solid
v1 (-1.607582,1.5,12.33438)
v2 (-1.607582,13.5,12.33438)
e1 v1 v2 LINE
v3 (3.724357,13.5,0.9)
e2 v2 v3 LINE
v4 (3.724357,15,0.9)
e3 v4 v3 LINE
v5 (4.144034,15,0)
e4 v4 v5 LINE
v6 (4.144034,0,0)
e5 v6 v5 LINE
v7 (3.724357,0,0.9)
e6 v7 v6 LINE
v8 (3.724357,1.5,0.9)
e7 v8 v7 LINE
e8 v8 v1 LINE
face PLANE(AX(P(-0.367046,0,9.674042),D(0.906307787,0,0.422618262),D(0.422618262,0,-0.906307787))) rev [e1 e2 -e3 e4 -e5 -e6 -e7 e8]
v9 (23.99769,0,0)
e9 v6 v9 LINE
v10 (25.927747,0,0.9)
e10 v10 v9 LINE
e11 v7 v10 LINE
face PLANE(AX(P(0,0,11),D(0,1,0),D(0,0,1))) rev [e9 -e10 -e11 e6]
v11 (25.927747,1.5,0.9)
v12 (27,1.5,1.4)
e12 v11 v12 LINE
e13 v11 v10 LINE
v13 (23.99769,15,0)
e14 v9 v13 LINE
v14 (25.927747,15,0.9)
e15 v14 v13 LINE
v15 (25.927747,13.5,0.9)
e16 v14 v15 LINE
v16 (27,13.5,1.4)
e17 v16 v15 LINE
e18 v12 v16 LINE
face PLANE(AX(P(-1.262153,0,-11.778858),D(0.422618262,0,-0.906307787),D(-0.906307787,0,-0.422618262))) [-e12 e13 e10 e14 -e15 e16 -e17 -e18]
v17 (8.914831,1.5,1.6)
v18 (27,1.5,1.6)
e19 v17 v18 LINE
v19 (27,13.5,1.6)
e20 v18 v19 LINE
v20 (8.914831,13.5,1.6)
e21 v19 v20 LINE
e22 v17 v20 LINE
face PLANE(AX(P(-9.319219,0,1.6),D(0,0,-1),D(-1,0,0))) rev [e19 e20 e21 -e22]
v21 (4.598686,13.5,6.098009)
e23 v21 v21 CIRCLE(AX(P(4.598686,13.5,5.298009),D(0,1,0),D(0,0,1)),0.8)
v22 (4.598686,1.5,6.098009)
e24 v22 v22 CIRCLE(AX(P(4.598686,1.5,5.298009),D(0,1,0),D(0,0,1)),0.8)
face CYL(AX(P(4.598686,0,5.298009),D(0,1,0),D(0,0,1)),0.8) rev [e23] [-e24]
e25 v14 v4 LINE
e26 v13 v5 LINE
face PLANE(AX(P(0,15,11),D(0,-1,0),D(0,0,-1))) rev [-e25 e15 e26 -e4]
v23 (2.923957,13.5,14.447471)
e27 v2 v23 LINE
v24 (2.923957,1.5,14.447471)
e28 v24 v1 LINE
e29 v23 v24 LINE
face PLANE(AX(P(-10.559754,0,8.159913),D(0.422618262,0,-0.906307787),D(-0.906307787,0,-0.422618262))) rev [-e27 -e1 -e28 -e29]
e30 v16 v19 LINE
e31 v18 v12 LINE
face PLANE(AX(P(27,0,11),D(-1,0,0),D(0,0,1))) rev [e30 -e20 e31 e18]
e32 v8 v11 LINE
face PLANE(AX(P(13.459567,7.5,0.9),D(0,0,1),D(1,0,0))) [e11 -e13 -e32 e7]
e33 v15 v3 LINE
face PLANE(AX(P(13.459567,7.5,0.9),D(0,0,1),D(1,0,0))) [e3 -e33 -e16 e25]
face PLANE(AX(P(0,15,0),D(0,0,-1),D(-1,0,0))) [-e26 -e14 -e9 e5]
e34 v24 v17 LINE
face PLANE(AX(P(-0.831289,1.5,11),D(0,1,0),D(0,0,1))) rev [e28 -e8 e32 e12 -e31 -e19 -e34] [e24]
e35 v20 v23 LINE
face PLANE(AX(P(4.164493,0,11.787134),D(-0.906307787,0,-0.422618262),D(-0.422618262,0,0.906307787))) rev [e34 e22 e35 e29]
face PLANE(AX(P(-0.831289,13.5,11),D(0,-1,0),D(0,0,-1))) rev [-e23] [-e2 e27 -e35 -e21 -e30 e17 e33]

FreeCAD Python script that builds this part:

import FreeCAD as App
import Part
import Sketcher
from FreeCAD import Vector
Q = App.Units.Quantity

doc = App.newDocument("Part")
params = doc.addObject("Spreadsheet::Sheet", "Params")
for row, (alias, value) in enumerate([
    ("sketch1_width", "27 mm"),
    ("sketch1_height", "15 mm"),
    ("pad1_length", "11 mm"),
    ("sketch2_length", "5 mm"),
    ("sketch2_height", "9.4 mm"),
    ("sketch2_height2", "1.4 mm"),
    ("sketch3_height", "12 mm"),
    ("pocket2_length", "10.4 mm"),
    ("pocket2_length2", "0.7 mm"),
    ("sketch4_width", "5 mm"),
    ("sketch4_height", "12 mm"),
    ("pad2_length", "3.803863 mm"),
    ("sketch5_diameter", "1.6 mm"),
], start=1):
    params.set(f"A{row}", alias)
    params.set(f"B{row}", "=" + value)
    params.setAlias(f"B{row}", alias)

body = doc.addObject("PartDesign::Body", "Body")

# Sketch on XY plane
sketch1 = doc.addObject("Sketcher::SketchObject", "Sketch")
body.addObject(sketch1)
sketch1.AttachmentSupport = (doc.XY_Plane, [""])
sketch1.MapMode = "FlatFace"
sketch1.addGeometry(Part.LineSegment(Vector(0, 15, 0), Vector(0, 0, 0)), False)
sketch1.addGeometry(Part.LineSegment(Vector(0, 0, 0), Vector(27, 0, 0)), False)
sketch1.addGeometry(Part.LineSegment(Vector(27, 0, 0), Vector(27, 15, 0)), False)
sketch1.addGeometry(Part.LineSegment(Vector(27, 15, 0), Vector(0, 15, 0)), False)
sketch1.addConstraint(Sketcher.Constraint("Coincident", 0, 2, 1, 1))
sketch1.addConstraint(Sketcher.Constraint("Coincident", 1, 2, 2, 1))
sketch1.addConstraint(Sketcher.Constraint("Coincident", 2, 2, 3, 1))
sketch1.addConstraint(Sketcher.Constraint("Coincident", 3, 2, 0, 1))
sketch1.addConstraint(Sketcher.Constraint("Vertical", 0))
sketch1.addConstraint(Sketcher.Constraint("Horizontal", 1))
sketch1.addConstraint(Sketcher.Constraint("Vertical", 2))
sketch1.addConstraint(Sketcher.Constraint("Horizontal", 3))
sketch1.addConstraint(Sketcher.Constraint("Coincident", 0, 2, -1, 1))
sketch1.addConstraint(Sketcher.Constraint("DistanceX", 1, 1, 1, 2, 27.0))
sketch1.addConstraint(Sketcher.Constraint("DistanceY", 0, 2, 0, 1, 15.0))
sketch1.setExpression("Constraints[9]", "Params.sketch1_width")
sketch1.setExpression("Constraints[10]", "Params.sketch1_height")
pad1 = doc.addObject("PartDesign::Pad", "Pad")
body.addObject(pad1)
pad1.Profile = sketch1
pad1.setExpression("Length", "Params.pad1_length")

# Sketch on XZ plane
sketch2 = doc.addObject("Sketcher::SketchObject", "Sketch001")
body.addObject(sketch2)
sketch2.AttachmentSupport = (doc.XZ_Plane, [""])
sketch2.MapMode = "FlatFace"
sketch2.AttachmentOffset = App.Placement(Vector(0, 0, -15), App.Rotation())
sketch2.addGeometry(Part.LineSegment(Vector(0, 0, 0), Vector(0, 8.886909, 0)), False)
sketch2.addGeometry(Part.LineSegment(Vector(0, 8.886909, 0), Vector(4.144034, 0, 0)), False)
sketch2.addGeometry(Part.LineSegment(Vector(4.144034, 0, 0), Vector(0, 0, 0)), False)
sketch2.addGeometry(Part.LineSegment(Vector(27, 11, 0), Vector(27, 1.6, 0)), False)
sketch2.addGeometry(Part.LineSegment(Vector(27, 1.6, 0), Vector(8.914831, 1.6, 0)), False)
sketch2.addGeometry(Part.LineSegment(Vector(8.914831, 1.6, 0), Vector(4.531539, 11, 0)), False)
sketch2.addGeometry(Part.LineSegment(Vector(4.531539, 11, 0), Vector(27, 11, 0)), False)
sketch2.addGeometry(Part.LineSegment(Vector(0, 11, 0), Vector(4.531539, 11, 0)), False)
sketch2.addGeometry(Part.LineSegment(Vector(4.531539, 11, 0), Vector(0, 8.886909, 0)), False)
sketch2.addGeometry(Part.LineSegment(Vector(0, 8.886909, 0), Vector(0, 11, 0)), False)
sketch2.addGeometry(Part.LineSegment(Vector(23.99769, 0, 0), Vector(27, 1.4, 0)), False)
sketch2.addGeometry(Part.LineSegment(Vector(27, 1.4, 0), Vector(27, 0, 0)), False)
sketch2.addGeometry(Part.LineSegment(Vector(27, 0, 0), Vector(23.99769, 0, 0)), False)
sketch2.addConstraint(Sketcher.Constraint("Coincident", 0, 2, 1, 1))
sketch2.addConstraint(Sketcher.Constraint("Coincident", 1, 2, 2, 1))
sketch2.addConstraint(Sketcher.Constraint("Coincident", 2, 2, 0, 1))
sketch2.addConstraint(Sketcher.Constraint("Coincident", 3, 2, 4, 1))
sketch2.addConstraint(Sketcher.Constraint("Coincident", 4, 2, 5, 1))
sketch2.addConstraint(Sketcher.Constraint("Coincident", 5, 2, 6, 1))
sketch2.addConstraint(Sketcher.Constraint("Coincident", 6, 2, 3, 1))
sketch2.addConstraint(Sketcher.Constraint("Coincident", 7, 2, 8, 1))
sketch2.addConstraint(Sketcher.Constraint("Coincident", 8, 2, 9, 1))
sketch2.addConstraint(Sketcher.Constraint("Coincident", 9, 2, 7, 1))
sketch2.addConstraint(Sketcher.Constraint("Coincident", 10, 2, 11, 1))
sketch2.addConstraint(Sketcher.Constraint("Coincident", 11, 2, 12, 1))
sketch2.addConstraint(Sketcher.Constraint("Coincident", 12, 2, 10, 1))
sketch2.addConstraint(Sketcher.Constraint("Vertical", 0))
sketch2.addConstraint(Sketcher.Constraint("Horizontal", 2))
sketch2.addConstraint(Sketcher.Constraint("Vertical", 3))
sketch2.addConstraint(Sketcher.Constraint("Horizontal", 4))
sketch2.addConstraint(Sketcher.Constraint("Horizontal", 6))
sketch2.addConstraint(Sketcher.Constraint("Horizontal", 7))
sketch2.addConstraint(Sketcher.Constraint("Vertical", 9))
sketch2.addConstraint(Sketcher.Constraint("Vertical", 11))
sketch2.addConstraint(Sketcher.Constraint("Horizontal", 12))
sketch2.addConstraint(Sketcher.Constraint("Coincident", 2, 2, -1, 1))
sketch2.addConstraint(Sketcher.Constraint("Coincident", 7, 2, 5, 2))
sketch2.addConstraint(Sketcher.Constraint("Coincident", 8, 2, 0, 2))
sketch2.addConstraint(Sketcher.Constraint("PointOnObject", 11, 2, -1))
sketch2.addConstraint(Sketcher.Constraint("Parallel", 1, 5))
sketch2.addConstraint(Sketcher.Constraint("Perpendicular", 5, 8))
sketch2.addConstraint(Sketcher.Constraint("Parallel", 8, 10))
sketch2.addConstraint(Sketcher.Constraint("Vertical", 6, 2, 10, 2))
sketch2.addConstraint(Sketcher.Constraint("Angle", 1, Q("-65 deg")))
sketch2.addConstraint(Sketcher.Constraint("Distance", 8, 5.0))
sketch2.addConstraint(Sketcher.Constraint("DistanceY", 3, 2, 3, 1, 9.4))
sketch2.addConstraint(Sketcher.Constraint("DistanceY", 11, 2, 11, 1, 1.4))
sketch2.addConstraint(Sketcher.Constraint("DistanceX", -1, 1, 3, 2, 27.0))
sketch2.addConstraint(Sketcher.Constraint("DistanceY", -1, 1, 5, 2, 11.0))
sketch2.setExpression("Constraints[31]", "Params.sketch2_length")
sketch2.setExpression("Constraints[32]", "Params.sketch2_height")
sketch2.setExpression("Constraints[33]", "Params.sketch2_height2")
pocket1 = doc.addObject("PartDesign::Pocket", "Pocket")
body.addObject(pocket1)
pocket1.Profile = sketch2
pocket1.Type = "ThroughAll"
pocket1.Reversed = True

# Sketch on XY plane
sketch3 = doc.addObject("Sketcher::SketchObject", "Sketch002")
body.addObject(sketch3)
sketch3.AttachmentSupport = (doc.XY_Plane, [""])
sketch3.MapMode = "FlatFace"
sketch3.AttachmentOffset = App.Placement(Vector(0, 0, 1.6), App.Rotation())
sketch3.addGeometry(Part.LineSegment(Vector(-4.279, 19.279, 0), Vector(-4.279, -4.279, 0)), False)
sketch3.addGeometry(Part.LineSegment(Vector(-4.279, -4.279, 0), Vector(31.279, -4.279, 0)), False)
sketch3.addGeometry(Part.LineSegment(Vector(31.279, -4.279, 0), Vector(31.279, 19.279, 0)), False)
sketch3.addGeometry(Part.LineSegment(Vector(31.279, 19.279, 0), Vector(-4.279, 19.279, 0)), False)
sketch3.addGeometry(Part.LineSegment(Vector(27.750423, 1.5, 0), Vector(-0.831289, 1.5, 0)), False)
sketch3.addGeometry(Part.LineSegment(Vector(-0.831289, 1.5, 0), Vector(-0.831289, 13.5, 0)), False)
sketch3.addGeometry(Part.LineSegment(Vector(-0.831289, 13.5, 0), Vector(27.750423, 13.5, 0)), False)
sketch3.addGeometry(Part.LineSegment(Vector(27.750423, 13.5, 0), Vector(27.750423, 1.5, 0)), False)
sketch3.addConstraint(Sketcher.Constraint("Coincident", 0, 2, 1, 1))
sketch3.addConstraint(Sketcher.Constraint("Coincident", 1, 2, 2, 1))
sketch3.addConstraint(Sketcher.Constraint("Coincident", 2, 2, 3, 1))
sketch3.addConstraint(Sketcher.Constraint("Coincident", 3, 2, 0, 1))
sketch3.addConstraint(Sketcher.Constraint("Coincident", 4, 2, 5, 1))
sketch3.addConstraint(Sketcher.Constraint("Coincident", 5, 2, 6, 1))
sketch3.addConstraint(Sketcher.Constraint("Coincident", 6, 2, 7, 1))
sketch3.addConstraint(Sketcher.Constraint("Coincident", 7, 2, 4, 1))
sketch3.addConstraint(Sketcher.Constraint("Vertical", 0))
sketch3.addConstraint(Sketcher.Constraint("Horizontal", 1))
sketch3.addConstraint(Sketcher.Constraint("Vertical", 2))
sketch3.addConstraint(Sketcher.Constraint("Horizontal", 3))
sketch3.addConstraint(Sketcher.Constraint("Horizontal", 4))
sketch3.addConstraint(Sketcher.Constraint("Vertical", 5))
sketch3.addConstraint(Sketcher.Constraint("Horizontal", 6))
sketch3.addConstraint(Sketcher.Constraint("Vertical", 7))
sketch3.addConstraint(Sketcher.Constraint("DistanceY", 5, 1, 5, 2, 12.0))
sketch3.addConstraint(Sketcher.Constraint("DistanceY", -1, 1, 4, 2, 1.5))
sketch3.addConstraint(Sketcher.Constraint("DistanceX", 1, 1, 1, 2, 35.558))
sketch3.addConstraint(Sketcher.Constraint("DistanceY", 0, 2, 0, 1, 23.558))
sketch3.addConstraint(Sketcher.Constraint("DistanceX", 0, 2, -1, 1, 4.279))
sketch3.addConstraint(Sketcher.Constraint("DistanceY", 0, 2, -1, 1, 4.279))
sketch3.addConstraint(Sketcher.Constraint("DistanceX", 4, 2, 4, 1, 28.581712))
sketch3.addConstraint(Sketcher.Constraint("DistanceX", 4, 2, -1, 1, 0.831289))
sketch3.setExpression("Constraints[16]", "Params.sketch3_height")
pocket2 = doc.addObject("PartDesign::Pocket", "Pocket001")
body.addObject(pocket2)
pocket2.Profile = sketch3
pocket2.Type = "TwoLengths"
pocket2.setExpression("Length", "Params.pocket2_length")
pocket2.setExpression("Length2", "Params.pocket2_length2")
pocket2.Reversed = True

# Sketch on an angled plane
sketch4 = doc.addObject("Sketcher::SketchObject", "Sketch003")
body.addObject(sketch4)
sketch4.Placement = App.Placement(Vector(-3.403884, 0, 7.299652), App.Rotation(Vector(0.906307787, 0, 0.422618262), Vector(0, 1, 0), Vector(-0.422618262, 0, 0.906307787), "ZXY"))
sketch4.addGeometry(Part.LineSegment(Vector(3.75577, 13.5, 0), Vector(3.75577, 1.5, 0)), False)
sketch4.addGeometry(Part.LineSegment(Vector(3.75577, 1.5, 0), Vector(8.75577, 1.5, 0)), False)
sketch4.addGeometry(Part.LineSegment(Vector(8.75577, 1.5, 0), Vector(8.75577, 13.5, 0)), False)
sketch4.addGeometry(Part.LineSegment(Vector(8.75577, 13.5, 0), Vector(3.75577, 13.5, 0)), False)
sketch4.addConstraint(Sketcher.Constraint("Coincident", 0, 2, 1, 1))
sketch4.addConstraint(Sketcher.Constraint("Coincident", 1, 2, 2, 1))
sketch4.addConstraint(Sketcher.Constraint("Coincident", 2, 2, 3, 1))
sketch4.addConstraint(Sketcher.Constraint("Coincident", 3, 2, 0, 1))
sketch4.addConstraint(Sketcher.Constraint("Vertical", 0))
sketch4.addConstraint(Sketcher.Constraint("Horizontal", 1))
sketch4.addConstraint(Sketcher.Constraint("Vertical", 2))
sketch4.addConstraint(Sketcher.Constraint("Horizontal", 3))
sketch4.addConstraint(Sketcher.Constraint("DistanceX", 1, 1, 1, 2, 5.0))
sketch4.addConstraint(Sketcher.Constraint("DistanceY", 0, 2, 0, 1, 12.0))
sketch4.addConstraint(Sketcher.Constraint("DistanceY", -1, 1, 0, 2, 1.5))
sketch4.addConstraint(Sketcher.Constraint("DistanceX", -1, 1, 0, 2, 3.75577))
sketch4.setExpression("Constraints[8]", "Params.sketch4_width")
sketch4.setExpression("Constraints[9]", "Params.sketch4_height")
pad2 = doc.addObject("PartDesign::Pad", "Pad001")
body.addObject(pad2)
pad2.Profile = sketch4
pad2.setExpression("Length", "Params.pad2_length")

# Sketch on XZ plane
sketch5 = doc.addObject("Sketcher::SketchObject", "Sketch004")
body.addObject(sketch5)
sketch5.AttachmentSupport = (doc.XZ_Plane, [""])
sketch5.MapMode = "FlatFace"
sketch5.AttachmentOffset = App.Placement(Vector(0, 0, -13.5), App.Rotation())
sketch5.addGeometry(Part.Circle(Vector(4.598686, 5.298009, 0), Vector(0, 0, 1), 0.8), False)
sketch5.addConstraint(Sketcher.Constraint("Diameter", 0, 1.6))
sketch5.addConstraint(Sketcher.Constraint("DistanceY", -1, 1, 0, 3, 5.298009))
sketch5.addConstraint(Sketcher.Constraint("DistanceX", -1, 1, 0, 3, 4.598686))
sketch5.setExpression("Constraints[0]", "Params.sketch5_diameter")
pocket3 = doc.addObject("PartDesign::Pocket", "Pocket002")
body.addObject(pocket3)
pocket3.Profile = sketch5
pocket3.Type = "ThroughAll"
pocket3.Reversed = True

doc.recompute()
